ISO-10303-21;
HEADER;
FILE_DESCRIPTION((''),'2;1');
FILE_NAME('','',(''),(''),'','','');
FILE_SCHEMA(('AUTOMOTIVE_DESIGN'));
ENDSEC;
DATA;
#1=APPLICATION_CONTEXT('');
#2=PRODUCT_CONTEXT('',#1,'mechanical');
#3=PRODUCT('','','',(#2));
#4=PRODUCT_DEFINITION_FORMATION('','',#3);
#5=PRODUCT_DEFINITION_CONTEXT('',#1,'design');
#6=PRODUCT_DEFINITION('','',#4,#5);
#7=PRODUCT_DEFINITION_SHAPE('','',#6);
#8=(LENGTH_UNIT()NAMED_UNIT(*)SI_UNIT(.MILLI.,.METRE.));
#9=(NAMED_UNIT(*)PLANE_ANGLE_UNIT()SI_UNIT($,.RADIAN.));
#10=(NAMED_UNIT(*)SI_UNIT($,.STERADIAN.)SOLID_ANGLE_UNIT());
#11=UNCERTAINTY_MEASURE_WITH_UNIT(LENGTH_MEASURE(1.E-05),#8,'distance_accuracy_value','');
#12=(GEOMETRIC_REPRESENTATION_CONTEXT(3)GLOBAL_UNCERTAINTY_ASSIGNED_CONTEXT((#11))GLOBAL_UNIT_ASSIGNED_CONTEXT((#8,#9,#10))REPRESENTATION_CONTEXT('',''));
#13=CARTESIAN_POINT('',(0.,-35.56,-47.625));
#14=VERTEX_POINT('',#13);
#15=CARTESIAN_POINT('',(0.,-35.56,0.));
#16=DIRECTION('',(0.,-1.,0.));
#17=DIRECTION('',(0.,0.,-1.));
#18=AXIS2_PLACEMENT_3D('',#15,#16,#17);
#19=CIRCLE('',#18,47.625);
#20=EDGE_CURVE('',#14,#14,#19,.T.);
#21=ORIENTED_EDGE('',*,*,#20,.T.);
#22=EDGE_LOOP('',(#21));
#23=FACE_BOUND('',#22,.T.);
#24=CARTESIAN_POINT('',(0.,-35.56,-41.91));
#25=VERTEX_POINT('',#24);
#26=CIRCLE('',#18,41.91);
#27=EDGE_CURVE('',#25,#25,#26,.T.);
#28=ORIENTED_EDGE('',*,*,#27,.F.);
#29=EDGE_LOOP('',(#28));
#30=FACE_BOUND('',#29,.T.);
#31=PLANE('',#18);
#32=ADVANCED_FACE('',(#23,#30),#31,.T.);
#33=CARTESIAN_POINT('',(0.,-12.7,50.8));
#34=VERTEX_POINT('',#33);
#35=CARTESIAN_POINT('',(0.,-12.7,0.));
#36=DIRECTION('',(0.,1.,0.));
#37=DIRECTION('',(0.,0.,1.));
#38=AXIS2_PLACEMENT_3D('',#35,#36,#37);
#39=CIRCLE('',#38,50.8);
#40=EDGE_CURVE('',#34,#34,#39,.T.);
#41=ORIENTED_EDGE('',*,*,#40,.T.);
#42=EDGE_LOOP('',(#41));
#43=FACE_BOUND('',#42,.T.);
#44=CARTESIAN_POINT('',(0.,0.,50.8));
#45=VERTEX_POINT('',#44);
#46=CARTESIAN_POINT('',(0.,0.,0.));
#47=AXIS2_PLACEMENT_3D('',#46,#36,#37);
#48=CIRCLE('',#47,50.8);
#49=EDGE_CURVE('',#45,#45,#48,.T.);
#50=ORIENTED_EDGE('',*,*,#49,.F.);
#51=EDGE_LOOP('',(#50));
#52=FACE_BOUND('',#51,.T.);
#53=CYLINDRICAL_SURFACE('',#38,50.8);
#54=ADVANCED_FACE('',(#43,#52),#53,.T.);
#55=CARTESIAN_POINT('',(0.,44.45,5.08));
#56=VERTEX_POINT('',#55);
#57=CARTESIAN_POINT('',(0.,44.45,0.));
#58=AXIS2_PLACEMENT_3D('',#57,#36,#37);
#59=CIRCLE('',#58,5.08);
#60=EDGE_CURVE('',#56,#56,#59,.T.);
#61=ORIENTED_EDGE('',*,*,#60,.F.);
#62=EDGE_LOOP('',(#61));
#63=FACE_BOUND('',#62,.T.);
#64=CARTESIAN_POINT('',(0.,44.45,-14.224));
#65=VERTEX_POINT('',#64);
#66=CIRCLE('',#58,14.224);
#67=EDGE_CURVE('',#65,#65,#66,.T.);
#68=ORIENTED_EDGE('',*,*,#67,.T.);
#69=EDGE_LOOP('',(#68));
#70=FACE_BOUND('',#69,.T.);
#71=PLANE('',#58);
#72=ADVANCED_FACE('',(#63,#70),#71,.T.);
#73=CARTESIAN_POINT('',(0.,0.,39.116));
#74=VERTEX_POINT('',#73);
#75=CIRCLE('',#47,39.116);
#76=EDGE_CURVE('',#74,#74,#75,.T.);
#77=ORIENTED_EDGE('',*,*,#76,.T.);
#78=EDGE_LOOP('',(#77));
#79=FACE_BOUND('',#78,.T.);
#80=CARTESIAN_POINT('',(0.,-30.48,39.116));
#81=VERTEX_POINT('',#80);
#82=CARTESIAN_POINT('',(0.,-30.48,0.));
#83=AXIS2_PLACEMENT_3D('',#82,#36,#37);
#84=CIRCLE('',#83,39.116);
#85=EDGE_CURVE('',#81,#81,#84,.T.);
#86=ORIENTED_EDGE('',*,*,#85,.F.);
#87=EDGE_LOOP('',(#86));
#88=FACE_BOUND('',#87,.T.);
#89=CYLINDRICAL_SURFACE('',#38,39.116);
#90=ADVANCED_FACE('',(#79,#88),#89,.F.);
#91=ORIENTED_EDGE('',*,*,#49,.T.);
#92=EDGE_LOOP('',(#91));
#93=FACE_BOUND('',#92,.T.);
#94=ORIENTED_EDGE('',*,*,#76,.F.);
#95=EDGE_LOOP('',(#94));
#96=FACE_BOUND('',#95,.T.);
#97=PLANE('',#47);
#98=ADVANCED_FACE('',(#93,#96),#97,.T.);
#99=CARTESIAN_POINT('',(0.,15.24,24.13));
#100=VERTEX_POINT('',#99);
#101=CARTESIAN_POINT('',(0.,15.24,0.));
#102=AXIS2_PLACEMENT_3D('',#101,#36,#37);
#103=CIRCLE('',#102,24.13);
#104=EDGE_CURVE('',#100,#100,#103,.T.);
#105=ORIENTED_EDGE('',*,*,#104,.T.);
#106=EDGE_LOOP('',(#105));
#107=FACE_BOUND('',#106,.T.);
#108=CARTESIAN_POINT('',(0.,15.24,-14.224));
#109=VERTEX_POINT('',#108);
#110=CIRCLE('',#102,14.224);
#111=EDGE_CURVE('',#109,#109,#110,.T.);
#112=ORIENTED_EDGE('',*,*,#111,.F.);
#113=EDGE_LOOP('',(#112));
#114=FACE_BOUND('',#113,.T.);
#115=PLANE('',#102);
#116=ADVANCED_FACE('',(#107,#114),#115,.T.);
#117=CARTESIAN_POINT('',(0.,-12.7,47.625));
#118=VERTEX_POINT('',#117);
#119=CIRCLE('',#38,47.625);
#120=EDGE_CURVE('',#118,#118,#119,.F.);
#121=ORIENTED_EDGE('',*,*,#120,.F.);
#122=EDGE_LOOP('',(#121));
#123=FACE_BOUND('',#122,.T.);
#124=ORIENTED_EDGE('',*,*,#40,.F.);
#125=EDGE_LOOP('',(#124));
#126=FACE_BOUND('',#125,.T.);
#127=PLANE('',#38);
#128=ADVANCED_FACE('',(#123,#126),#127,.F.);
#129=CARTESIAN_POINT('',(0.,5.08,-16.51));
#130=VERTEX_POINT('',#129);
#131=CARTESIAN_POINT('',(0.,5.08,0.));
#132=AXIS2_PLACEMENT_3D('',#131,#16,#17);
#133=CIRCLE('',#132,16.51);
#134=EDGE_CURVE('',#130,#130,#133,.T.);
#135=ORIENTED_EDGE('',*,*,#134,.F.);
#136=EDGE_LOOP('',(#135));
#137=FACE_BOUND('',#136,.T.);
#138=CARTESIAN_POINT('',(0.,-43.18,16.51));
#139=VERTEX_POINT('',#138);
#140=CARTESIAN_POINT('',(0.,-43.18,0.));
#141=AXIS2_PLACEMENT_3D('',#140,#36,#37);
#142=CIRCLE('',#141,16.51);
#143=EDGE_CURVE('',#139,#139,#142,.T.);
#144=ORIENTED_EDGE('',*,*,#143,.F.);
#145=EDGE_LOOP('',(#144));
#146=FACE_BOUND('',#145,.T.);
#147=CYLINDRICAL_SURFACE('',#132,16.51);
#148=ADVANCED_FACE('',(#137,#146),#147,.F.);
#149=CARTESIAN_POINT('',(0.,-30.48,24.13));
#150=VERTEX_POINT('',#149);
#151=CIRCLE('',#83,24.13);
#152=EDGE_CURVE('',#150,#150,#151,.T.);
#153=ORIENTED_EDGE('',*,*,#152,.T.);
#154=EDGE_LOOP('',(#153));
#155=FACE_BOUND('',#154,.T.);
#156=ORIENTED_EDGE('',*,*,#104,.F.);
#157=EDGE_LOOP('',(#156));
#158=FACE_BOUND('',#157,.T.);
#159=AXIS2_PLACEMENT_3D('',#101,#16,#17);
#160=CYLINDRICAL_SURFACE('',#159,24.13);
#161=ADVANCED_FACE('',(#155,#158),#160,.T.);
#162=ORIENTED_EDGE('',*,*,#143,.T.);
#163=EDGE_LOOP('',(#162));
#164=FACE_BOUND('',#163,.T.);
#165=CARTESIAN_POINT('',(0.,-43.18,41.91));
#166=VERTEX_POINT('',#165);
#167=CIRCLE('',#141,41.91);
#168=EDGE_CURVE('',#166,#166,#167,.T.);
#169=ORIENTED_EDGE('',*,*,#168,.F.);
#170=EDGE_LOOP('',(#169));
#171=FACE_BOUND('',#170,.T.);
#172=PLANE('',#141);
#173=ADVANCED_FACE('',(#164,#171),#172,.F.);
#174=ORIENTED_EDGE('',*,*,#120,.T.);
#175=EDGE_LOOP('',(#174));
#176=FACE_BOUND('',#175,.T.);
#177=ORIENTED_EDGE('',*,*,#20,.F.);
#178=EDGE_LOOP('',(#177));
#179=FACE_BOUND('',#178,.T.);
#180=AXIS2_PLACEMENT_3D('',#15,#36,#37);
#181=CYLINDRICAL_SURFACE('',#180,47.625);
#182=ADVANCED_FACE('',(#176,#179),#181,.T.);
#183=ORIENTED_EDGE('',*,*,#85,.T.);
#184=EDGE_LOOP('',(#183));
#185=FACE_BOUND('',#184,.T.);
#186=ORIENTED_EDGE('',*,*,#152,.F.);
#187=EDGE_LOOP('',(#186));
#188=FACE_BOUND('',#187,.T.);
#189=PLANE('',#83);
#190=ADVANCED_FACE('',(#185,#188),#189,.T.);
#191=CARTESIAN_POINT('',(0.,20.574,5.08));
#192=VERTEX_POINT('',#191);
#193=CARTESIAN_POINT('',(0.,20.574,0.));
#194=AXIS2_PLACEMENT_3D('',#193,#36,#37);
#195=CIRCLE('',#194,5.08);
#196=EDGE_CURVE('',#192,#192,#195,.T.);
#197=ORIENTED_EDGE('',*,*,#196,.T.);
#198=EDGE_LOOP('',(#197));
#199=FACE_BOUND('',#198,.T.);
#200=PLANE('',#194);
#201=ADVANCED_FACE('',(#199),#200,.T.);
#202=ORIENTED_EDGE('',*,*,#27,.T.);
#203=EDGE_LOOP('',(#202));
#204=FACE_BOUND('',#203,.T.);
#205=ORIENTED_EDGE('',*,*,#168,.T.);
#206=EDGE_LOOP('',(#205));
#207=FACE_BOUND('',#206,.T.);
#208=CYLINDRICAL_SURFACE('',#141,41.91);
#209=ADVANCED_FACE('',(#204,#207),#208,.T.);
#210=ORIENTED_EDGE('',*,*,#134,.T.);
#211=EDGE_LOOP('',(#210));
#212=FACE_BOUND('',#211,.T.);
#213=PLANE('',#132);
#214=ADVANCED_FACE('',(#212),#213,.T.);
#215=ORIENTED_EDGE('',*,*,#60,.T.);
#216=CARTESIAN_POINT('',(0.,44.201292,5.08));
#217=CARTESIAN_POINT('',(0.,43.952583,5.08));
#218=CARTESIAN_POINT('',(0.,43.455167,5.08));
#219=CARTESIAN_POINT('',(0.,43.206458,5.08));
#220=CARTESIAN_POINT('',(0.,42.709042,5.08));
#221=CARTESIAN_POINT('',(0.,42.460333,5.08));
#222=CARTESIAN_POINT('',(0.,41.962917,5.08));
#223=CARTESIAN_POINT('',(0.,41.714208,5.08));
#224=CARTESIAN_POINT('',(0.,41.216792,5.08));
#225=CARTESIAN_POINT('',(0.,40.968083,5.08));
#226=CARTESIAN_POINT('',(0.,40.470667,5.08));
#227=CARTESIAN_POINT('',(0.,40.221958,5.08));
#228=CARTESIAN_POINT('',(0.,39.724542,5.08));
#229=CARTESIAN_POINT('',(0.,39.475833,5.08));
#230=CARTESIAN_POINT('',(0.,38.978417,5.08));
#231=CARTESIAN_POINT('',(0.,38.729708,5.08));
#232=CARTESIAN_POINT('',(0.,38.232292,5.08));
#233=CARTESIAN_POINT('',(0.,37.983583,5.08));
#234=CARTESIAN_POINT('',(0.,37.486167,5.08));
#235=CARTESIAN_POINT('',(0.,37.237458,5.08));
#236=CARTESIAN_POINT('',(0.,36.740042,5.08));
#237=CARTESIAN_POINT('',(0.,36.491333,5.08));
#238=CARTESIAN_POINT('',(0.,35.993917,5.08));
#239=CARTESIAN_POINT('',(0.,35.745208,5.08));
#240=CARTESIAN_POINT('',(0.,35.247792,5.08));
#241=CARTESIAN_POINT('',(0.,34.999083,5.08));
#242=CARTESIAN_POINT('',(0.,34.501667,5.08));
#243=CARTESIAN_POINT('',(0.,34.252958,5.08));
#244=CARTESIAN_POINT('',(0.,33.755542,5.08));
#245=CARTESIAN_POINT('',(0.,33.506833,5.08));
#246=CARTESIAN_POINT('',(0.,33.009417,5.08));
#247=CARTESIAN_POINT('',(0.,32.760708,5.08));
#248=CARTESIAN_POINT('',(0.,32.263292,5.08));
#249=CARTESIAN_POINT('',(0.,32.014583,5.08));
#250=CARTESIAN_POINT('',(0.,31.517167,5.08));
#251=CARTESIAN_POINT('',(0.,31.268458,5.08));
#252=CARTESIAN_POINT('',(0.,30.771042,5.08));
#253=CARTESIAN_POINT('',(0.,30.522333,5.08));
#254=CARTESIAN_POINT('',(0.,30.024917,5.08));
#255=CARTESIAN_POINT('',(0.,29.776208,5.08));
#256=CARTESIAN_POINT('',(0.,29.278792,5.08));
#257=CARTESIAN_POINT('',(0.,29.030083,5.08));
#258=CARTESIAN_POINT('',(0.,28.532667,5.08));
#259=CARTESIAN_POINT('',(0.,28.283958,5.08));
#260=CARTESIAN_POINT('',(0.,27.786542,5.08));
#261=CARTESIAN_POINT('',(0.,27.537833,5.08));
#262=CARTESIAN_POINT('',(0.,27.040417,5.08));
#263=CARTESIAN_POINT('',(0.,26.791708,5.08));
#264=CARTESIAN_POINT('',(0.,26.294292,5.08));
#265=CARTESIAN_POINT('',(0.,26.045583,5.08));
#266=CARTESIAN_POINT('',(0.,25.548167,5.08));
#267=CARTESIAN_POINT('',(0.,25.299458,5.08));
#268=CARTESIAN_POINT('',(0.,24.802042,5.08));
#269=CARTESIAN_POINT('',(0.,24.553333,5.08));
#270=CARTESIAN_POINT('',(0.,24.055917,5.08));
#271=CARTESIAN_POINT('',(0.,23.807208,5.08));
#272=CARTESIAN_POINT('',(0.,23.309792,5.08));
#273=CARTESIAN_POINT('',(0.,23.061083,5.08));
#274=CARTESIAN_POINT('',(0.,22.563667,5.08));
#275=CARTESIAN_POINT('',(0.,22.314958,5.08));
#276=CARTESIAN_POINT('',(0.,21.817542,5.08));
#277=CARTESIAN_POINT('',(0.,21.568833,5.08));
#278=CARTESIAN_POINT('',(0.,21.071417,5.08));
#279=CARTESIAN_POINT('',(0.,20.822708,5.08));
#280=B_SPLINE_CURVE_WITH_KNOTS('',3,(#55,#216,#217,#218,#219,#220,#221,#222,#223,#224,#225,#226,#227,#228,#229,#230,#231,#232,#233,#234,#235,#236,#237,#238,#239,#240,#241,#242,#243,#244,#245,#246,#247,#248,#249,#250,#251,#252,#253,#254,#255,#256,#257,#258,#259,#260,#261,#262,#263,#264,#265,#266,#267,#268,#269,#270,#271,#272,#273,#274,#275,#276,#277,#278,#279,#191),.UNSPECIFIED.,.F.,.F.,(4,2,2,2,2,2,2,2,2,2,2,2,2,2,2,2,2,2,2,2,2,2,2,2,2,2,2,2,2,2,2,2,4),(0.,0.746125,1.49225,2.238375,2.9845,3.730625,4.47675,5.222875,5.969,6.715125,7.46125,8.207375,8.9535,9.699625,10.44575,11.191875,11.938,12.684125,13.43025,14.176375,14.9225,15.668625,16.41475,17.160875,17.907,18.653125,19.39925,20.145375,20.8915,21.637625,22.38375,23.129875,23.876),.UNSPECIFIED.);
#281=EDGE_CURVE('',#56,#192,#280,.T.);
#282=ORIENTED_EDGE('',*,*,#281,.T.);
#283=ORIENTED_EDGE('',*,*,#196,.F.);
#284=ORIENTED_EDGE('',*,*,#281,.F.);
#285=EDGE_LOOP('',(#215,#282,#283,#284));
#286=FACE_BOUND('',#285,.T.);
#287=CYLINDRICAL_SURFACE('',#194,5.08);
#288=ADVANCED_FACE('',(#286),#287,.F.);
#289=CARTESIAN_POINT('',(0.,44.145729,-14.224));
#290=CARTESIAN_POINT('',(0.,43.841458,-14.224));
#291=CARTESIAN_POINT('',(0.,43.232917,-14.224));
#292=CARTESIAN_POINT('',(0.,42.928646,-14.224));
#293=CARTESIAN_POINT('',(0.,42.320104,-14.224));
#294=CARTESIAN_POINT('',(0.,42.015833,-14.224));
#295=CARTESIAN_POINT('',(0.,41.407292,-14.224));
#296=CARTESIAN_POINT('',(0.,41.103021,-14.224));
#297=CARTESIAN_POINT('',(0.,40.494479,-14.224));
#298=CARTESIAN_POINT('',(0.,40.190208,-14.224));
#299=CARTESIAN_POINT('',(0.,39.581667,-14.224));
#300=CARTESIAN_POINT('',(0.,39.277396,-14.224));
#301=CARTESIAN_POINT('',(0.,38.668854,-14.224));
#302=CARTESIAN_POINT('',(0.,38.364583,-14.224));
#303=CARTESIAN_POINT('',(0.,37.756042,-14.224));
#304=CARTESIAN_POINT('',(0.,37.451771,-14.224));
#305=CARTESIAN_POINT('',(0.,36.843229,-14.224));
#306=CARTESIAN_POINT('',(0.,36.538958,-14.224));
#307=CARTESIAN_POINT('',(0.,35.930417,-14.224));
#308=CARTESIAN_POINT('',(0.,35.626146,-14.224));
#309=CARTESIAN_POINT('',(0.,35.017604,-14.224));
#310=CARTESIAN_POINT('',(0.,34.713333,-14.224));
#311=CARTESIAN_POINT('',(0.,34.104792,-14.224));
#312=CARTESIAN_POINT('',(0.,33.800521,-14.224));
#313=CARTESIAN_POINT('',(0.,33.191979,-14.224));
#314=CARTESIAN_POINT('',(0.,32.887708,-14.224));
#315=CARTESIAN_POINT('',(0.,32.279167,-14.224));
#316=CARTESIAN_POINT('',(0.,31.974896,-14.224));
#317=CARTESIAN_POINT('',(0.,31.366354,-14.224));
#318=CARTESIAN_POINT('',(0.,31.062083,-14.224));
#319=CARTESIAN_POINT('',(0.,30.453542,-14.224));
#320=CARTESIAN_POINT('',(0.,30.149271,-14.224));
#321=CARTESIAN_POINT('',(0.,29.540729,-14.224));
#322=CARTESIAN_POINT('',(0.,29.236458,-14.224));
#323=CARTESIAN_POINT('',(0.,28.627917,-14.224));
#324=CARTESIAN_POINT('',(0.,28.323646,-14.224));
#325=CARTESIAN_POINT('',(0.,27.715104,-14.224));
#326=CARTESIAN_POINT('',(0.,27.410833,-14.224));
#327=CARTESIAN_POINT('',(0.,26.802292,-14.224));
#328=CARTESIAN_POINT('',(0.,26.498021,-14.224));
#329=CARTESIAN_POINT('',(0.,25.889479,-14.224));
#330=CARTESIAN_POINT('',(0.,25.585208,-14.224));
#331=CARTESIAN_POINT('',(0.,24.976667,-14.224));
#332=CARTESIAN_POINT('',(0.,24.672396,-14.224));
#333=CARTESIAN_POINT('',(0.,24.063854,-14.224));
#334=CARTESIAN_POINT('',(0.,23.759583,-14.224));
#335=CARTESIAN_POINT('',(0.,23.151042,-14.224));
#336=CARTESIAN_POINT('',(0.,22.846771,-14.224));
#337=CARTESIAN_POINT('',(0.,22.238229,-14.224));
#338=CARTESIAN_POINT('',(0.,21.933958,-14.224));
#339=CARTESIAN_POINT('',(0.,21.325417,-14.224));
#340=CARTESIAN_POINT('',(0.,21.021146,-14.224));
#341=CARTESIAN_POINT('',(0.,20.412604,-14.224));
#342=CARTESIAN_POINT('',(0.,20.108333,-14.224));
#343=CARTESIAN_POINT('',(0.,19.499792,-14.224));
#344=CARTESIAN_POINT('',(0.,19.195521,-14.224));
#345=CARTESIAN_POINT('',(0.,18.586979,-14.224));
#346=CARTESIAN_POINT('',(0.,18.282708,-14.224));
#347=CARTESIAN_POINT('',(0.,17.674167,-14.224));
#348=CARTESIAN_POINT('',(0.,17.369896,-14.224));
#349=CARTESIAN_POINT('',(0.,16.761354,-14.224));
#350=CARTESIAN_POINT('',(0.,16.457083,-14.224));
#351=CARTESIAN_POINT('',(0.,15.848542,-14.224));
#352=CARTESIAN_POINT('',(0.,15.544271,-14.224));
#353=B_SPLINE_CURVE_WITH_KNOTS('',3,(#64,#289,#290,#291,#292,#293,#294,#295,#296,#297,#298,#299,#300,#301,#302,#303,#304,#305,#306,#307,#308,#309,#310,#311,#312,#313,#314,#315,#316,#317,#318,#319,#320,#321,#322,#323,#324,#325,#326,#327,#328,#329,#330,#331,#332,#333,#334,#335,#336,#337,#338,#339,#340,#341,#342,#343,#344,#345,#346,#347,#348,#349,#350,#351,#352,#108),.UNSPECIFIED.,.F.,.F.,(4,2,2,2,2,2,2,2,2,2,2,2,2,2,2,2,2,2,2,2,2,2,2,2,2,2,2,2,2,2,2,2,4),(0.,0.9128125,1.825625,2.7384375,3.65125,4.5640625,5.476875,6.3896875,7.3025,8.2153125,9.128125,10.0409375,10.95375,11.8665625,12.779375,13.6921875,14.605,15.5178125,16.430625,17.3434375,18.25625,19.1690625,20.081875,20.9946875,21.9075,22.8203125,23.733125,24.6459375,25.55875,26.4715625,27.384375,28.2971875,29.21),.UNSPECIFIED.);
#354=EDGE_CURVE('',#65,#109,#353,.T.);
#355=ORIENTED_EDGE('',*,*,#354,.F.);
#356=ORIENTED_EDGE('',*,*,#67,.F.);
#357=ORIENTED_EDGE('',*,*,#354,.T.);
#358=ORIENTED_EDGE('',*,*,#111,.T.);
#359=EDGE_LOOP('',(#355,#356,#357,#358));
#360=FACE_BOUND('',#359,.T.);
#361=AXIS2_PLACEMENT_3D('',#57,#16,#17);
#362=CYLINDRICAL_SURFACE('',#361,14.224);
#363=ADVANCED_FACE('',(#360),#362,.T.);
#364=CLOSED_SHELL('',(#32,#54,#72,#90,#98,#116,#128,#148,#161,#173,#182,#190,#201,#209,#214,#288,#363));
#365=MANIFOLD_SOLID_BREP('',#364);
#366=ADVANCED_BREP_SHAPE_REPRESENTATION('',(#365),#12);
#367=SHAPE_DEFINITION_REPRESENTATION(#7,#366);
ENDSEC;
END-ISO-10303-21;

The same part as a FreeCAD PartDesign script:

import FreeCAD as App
import Part
import Sketcher

V = App.Vector
Q = App.Units.Quantity

doc = App.newDocument("Part")
body = doc.addObject("PartDesign::Body", "Body")

sketch1 = body.newObject("Sketcher::SketchObject", "Sketch")
sketch1.AttachmentSupport = (doc.getObject("XZ_Plane"), [""])
sketch1.MapMode = "FlatFace"
sketch1.addGeometry([
    Part.Circle(V(0, 0, 0), V(0, 0, 1), 51),
    Part.Circle(V(0, 0, 0), V(0, 0, 1), 39),
], False)
sketch1.addConstraint([
    Sketcher.Constraint("Coincident", 0, 3, -1, 1),
    Sketcher.Constraint("Coincident", 1, 3, -1, 1),
    Sketcher.Constraint("Diameter", 0, Q("4 in")),
    Sketcher.Constraint("Diameter", 1, Q("3.08 in")),
])
pad1 = body.newObject("PartDesign::Pad", "Pad")
pad1.Profile = sketch1
pad1.Length = Q("0.5 in")
body2 = doc.addObject("PartDesign::Body", "Body001")

sketch2 = body2.newObject("Sketcher::SketchObject", "Sketch001")
sketch2.AttachmentSupport = (doc.getObject("XZ_Plane001"), [""])
sketch2.MapMode = "FlatFace"
sketch2.AttachmentOffset = App.Placement(V(0, 0, 0.6 * 25.4), App.Rotation())
sketch2.addGeometry([
    Part.Circle(V(0, 0, 0), V(0, 0, 1), 48),
    Part.Circle(V(0, 0, 0), V(0, 0, 1), 39),
], False)
sketch2.addConstraint([
    Sketcher.Constraint("Coincident", 0, 3, -1, 1),
    Sketcher.Constraint("Coincident", 1, 3, -1, 1),
    Sketcher.Constraint("Diameter", 0, Q("3.75 in")),
    Sketcher.Constraint("Diameter", 1, Q("3.08 in")),
])
pad2 = body2.newObject("PartDesign::Pad", "Pad001")
pad2.Profile = sketch2
pad2.Type = "TwoLengths"
pad2.Length = Q("0.8 in")
pad2.Length2 = Q("0.1 in")

sketch3 = body2.newObject("Sketcher::SketchObject", "Sketch002")
sketch3.AttachmentSupport = (doc.getObject("XZ_Plane001"), [""])
sketch3.MapMode = "FlatFace"
sketch3.AttachmentOffset = App.Placement(V(0, 0, 1.5 * 25.4), App.Rotation())
sketch3.addGeometry(Part.Circle(V(0, 0, 0), V(0, 0, 1), 42), False)
sketch3.addConstraint([
    Sketcher.Constraint("Coincident", 0, 3, -1, 1),
    Sketcher.Constraint("Diameter", 0, Q("3.3 in")),
])
pad3 = body2.newObject("PartDesign::Pad", "Pad002")
pad3.Profile = sketch3
pad3.Type = "TwoLengths"
pad3.Length = Q("0.3 in")
pad3.Length2 = Q("0.2 in")
pad3.Reversed = True
doc.recompute()

boolean = body.newObject("PartDesign::Boolean", "Boolean")
boolean.Type = "Fuse"
boolean.addObjects([body2])

sketch4 = body.newObject("Sketcher::SketchObject", "Sketch003")
sketch4.AttachmentSupport = (doc.getObject("XZ_Plane"), [""])
sketch4.MapMode = "FlatFace"
sketch4.AttachmentOffset = App.Placement(V(0, 0, 1.2 * 25.4), App.Rotation())
sketch4.addGeometry(Part.Circle(V(0, 0, 0), V(0, 0, 1), 24), False)
sketch4.addConstraint([
    Sketcher.Constraint("Coincident", 0, 3, -1, 1),
    Sketcher.Constraint("Diameter", 0, Q("1.9 in")),
])
pad4 = body.newObject("PartDesign::Pad", "Pad003")
pad4.Profile = sketch4
pad4.Length = Q("1.8 in")
pad4.Reversed = True

sketch5 = body.newObject("Sketcher::SketchObject", "Sketch004")
sketch5.AttachmentSupport = (doc.getObject("XZ_Plane"), [""])
sketch5.MapMode = "FlatFace"
sketch5.AttachmentOffset = App.Placement(V(0, 0, -0.6 * 25.4), App.Rotation())
sketch5.addGeometry(Part.Circle(V(0, 0, 0), V(0, 0, 1), 14), False)
sketch5.addConstraint([
    Sketcher.Constraint("Coincident", 0, 3, -1, 1),
    Sketcher.Constraint("Diameter", 0, Q("1.12 in")),
])
pad5 = body.newObject("PartDesign::Pad", "Pad004")
pad5.Profile = sketch5
pad5.Length = Q("1.15 in")
pad5.Reversed = True

sketch6 = body.newObject("Sketcher::SketchObject", "Sketch005")
sketch6.AttachmentSupport = (doc.getObject("XZ_Plane"), [""])
sketch6.MapMode = "FlatFace"
sketch6.AttachmentOffset = App.Placement(V(0, 0, 1.8 * 25.4), App.Rotation())
sketch6.addGeometry(Part.Circle(V(0, 0, 0), V(0, 0, 1), 17), False)
sketch6.addConstraint([
    Sketcher.Constraint("Coincident", 0, 3, -1, 1),
    Sketcher.Constraint("Diameter", 0, Q("1.3 in")),
])
pocket1 = body.newObject("PartDesign::Pocket", "Pocket")
pocket1.Profile = sketch6
pocket1.Length = Q("2 in")

sketch7 = body.newObject("Sketcher::SketchObject", "Sketch006")
sketch7.AttachmentSupport = (doc.getObject("XZ_Plane"), [""])
sketch7.MapMode = "FlatFace"
sketch7.AttachmentOffset = App.Placement(V(0, 0, -1.85 * 25.4), App.Rotation())
sketch7.addGeometry(Part.Circle(V(0, 0, 0), V(0, 0, 1), 5), False)
sketch7.addConstraint([
    Sketcher.Constraint("Coincident", 0, 3, -1, 1),
    Sketcher.Constraint("Diameter", 0, Q("0.4 in")),
])
pocket2 = body.newObject("PartDesign::Pocket", "Pocket001")
pocket2.Profile = sketch7
pocket2.Length = Q("1.04 in")
pocket2.Reversed = True

doc.recompute()
